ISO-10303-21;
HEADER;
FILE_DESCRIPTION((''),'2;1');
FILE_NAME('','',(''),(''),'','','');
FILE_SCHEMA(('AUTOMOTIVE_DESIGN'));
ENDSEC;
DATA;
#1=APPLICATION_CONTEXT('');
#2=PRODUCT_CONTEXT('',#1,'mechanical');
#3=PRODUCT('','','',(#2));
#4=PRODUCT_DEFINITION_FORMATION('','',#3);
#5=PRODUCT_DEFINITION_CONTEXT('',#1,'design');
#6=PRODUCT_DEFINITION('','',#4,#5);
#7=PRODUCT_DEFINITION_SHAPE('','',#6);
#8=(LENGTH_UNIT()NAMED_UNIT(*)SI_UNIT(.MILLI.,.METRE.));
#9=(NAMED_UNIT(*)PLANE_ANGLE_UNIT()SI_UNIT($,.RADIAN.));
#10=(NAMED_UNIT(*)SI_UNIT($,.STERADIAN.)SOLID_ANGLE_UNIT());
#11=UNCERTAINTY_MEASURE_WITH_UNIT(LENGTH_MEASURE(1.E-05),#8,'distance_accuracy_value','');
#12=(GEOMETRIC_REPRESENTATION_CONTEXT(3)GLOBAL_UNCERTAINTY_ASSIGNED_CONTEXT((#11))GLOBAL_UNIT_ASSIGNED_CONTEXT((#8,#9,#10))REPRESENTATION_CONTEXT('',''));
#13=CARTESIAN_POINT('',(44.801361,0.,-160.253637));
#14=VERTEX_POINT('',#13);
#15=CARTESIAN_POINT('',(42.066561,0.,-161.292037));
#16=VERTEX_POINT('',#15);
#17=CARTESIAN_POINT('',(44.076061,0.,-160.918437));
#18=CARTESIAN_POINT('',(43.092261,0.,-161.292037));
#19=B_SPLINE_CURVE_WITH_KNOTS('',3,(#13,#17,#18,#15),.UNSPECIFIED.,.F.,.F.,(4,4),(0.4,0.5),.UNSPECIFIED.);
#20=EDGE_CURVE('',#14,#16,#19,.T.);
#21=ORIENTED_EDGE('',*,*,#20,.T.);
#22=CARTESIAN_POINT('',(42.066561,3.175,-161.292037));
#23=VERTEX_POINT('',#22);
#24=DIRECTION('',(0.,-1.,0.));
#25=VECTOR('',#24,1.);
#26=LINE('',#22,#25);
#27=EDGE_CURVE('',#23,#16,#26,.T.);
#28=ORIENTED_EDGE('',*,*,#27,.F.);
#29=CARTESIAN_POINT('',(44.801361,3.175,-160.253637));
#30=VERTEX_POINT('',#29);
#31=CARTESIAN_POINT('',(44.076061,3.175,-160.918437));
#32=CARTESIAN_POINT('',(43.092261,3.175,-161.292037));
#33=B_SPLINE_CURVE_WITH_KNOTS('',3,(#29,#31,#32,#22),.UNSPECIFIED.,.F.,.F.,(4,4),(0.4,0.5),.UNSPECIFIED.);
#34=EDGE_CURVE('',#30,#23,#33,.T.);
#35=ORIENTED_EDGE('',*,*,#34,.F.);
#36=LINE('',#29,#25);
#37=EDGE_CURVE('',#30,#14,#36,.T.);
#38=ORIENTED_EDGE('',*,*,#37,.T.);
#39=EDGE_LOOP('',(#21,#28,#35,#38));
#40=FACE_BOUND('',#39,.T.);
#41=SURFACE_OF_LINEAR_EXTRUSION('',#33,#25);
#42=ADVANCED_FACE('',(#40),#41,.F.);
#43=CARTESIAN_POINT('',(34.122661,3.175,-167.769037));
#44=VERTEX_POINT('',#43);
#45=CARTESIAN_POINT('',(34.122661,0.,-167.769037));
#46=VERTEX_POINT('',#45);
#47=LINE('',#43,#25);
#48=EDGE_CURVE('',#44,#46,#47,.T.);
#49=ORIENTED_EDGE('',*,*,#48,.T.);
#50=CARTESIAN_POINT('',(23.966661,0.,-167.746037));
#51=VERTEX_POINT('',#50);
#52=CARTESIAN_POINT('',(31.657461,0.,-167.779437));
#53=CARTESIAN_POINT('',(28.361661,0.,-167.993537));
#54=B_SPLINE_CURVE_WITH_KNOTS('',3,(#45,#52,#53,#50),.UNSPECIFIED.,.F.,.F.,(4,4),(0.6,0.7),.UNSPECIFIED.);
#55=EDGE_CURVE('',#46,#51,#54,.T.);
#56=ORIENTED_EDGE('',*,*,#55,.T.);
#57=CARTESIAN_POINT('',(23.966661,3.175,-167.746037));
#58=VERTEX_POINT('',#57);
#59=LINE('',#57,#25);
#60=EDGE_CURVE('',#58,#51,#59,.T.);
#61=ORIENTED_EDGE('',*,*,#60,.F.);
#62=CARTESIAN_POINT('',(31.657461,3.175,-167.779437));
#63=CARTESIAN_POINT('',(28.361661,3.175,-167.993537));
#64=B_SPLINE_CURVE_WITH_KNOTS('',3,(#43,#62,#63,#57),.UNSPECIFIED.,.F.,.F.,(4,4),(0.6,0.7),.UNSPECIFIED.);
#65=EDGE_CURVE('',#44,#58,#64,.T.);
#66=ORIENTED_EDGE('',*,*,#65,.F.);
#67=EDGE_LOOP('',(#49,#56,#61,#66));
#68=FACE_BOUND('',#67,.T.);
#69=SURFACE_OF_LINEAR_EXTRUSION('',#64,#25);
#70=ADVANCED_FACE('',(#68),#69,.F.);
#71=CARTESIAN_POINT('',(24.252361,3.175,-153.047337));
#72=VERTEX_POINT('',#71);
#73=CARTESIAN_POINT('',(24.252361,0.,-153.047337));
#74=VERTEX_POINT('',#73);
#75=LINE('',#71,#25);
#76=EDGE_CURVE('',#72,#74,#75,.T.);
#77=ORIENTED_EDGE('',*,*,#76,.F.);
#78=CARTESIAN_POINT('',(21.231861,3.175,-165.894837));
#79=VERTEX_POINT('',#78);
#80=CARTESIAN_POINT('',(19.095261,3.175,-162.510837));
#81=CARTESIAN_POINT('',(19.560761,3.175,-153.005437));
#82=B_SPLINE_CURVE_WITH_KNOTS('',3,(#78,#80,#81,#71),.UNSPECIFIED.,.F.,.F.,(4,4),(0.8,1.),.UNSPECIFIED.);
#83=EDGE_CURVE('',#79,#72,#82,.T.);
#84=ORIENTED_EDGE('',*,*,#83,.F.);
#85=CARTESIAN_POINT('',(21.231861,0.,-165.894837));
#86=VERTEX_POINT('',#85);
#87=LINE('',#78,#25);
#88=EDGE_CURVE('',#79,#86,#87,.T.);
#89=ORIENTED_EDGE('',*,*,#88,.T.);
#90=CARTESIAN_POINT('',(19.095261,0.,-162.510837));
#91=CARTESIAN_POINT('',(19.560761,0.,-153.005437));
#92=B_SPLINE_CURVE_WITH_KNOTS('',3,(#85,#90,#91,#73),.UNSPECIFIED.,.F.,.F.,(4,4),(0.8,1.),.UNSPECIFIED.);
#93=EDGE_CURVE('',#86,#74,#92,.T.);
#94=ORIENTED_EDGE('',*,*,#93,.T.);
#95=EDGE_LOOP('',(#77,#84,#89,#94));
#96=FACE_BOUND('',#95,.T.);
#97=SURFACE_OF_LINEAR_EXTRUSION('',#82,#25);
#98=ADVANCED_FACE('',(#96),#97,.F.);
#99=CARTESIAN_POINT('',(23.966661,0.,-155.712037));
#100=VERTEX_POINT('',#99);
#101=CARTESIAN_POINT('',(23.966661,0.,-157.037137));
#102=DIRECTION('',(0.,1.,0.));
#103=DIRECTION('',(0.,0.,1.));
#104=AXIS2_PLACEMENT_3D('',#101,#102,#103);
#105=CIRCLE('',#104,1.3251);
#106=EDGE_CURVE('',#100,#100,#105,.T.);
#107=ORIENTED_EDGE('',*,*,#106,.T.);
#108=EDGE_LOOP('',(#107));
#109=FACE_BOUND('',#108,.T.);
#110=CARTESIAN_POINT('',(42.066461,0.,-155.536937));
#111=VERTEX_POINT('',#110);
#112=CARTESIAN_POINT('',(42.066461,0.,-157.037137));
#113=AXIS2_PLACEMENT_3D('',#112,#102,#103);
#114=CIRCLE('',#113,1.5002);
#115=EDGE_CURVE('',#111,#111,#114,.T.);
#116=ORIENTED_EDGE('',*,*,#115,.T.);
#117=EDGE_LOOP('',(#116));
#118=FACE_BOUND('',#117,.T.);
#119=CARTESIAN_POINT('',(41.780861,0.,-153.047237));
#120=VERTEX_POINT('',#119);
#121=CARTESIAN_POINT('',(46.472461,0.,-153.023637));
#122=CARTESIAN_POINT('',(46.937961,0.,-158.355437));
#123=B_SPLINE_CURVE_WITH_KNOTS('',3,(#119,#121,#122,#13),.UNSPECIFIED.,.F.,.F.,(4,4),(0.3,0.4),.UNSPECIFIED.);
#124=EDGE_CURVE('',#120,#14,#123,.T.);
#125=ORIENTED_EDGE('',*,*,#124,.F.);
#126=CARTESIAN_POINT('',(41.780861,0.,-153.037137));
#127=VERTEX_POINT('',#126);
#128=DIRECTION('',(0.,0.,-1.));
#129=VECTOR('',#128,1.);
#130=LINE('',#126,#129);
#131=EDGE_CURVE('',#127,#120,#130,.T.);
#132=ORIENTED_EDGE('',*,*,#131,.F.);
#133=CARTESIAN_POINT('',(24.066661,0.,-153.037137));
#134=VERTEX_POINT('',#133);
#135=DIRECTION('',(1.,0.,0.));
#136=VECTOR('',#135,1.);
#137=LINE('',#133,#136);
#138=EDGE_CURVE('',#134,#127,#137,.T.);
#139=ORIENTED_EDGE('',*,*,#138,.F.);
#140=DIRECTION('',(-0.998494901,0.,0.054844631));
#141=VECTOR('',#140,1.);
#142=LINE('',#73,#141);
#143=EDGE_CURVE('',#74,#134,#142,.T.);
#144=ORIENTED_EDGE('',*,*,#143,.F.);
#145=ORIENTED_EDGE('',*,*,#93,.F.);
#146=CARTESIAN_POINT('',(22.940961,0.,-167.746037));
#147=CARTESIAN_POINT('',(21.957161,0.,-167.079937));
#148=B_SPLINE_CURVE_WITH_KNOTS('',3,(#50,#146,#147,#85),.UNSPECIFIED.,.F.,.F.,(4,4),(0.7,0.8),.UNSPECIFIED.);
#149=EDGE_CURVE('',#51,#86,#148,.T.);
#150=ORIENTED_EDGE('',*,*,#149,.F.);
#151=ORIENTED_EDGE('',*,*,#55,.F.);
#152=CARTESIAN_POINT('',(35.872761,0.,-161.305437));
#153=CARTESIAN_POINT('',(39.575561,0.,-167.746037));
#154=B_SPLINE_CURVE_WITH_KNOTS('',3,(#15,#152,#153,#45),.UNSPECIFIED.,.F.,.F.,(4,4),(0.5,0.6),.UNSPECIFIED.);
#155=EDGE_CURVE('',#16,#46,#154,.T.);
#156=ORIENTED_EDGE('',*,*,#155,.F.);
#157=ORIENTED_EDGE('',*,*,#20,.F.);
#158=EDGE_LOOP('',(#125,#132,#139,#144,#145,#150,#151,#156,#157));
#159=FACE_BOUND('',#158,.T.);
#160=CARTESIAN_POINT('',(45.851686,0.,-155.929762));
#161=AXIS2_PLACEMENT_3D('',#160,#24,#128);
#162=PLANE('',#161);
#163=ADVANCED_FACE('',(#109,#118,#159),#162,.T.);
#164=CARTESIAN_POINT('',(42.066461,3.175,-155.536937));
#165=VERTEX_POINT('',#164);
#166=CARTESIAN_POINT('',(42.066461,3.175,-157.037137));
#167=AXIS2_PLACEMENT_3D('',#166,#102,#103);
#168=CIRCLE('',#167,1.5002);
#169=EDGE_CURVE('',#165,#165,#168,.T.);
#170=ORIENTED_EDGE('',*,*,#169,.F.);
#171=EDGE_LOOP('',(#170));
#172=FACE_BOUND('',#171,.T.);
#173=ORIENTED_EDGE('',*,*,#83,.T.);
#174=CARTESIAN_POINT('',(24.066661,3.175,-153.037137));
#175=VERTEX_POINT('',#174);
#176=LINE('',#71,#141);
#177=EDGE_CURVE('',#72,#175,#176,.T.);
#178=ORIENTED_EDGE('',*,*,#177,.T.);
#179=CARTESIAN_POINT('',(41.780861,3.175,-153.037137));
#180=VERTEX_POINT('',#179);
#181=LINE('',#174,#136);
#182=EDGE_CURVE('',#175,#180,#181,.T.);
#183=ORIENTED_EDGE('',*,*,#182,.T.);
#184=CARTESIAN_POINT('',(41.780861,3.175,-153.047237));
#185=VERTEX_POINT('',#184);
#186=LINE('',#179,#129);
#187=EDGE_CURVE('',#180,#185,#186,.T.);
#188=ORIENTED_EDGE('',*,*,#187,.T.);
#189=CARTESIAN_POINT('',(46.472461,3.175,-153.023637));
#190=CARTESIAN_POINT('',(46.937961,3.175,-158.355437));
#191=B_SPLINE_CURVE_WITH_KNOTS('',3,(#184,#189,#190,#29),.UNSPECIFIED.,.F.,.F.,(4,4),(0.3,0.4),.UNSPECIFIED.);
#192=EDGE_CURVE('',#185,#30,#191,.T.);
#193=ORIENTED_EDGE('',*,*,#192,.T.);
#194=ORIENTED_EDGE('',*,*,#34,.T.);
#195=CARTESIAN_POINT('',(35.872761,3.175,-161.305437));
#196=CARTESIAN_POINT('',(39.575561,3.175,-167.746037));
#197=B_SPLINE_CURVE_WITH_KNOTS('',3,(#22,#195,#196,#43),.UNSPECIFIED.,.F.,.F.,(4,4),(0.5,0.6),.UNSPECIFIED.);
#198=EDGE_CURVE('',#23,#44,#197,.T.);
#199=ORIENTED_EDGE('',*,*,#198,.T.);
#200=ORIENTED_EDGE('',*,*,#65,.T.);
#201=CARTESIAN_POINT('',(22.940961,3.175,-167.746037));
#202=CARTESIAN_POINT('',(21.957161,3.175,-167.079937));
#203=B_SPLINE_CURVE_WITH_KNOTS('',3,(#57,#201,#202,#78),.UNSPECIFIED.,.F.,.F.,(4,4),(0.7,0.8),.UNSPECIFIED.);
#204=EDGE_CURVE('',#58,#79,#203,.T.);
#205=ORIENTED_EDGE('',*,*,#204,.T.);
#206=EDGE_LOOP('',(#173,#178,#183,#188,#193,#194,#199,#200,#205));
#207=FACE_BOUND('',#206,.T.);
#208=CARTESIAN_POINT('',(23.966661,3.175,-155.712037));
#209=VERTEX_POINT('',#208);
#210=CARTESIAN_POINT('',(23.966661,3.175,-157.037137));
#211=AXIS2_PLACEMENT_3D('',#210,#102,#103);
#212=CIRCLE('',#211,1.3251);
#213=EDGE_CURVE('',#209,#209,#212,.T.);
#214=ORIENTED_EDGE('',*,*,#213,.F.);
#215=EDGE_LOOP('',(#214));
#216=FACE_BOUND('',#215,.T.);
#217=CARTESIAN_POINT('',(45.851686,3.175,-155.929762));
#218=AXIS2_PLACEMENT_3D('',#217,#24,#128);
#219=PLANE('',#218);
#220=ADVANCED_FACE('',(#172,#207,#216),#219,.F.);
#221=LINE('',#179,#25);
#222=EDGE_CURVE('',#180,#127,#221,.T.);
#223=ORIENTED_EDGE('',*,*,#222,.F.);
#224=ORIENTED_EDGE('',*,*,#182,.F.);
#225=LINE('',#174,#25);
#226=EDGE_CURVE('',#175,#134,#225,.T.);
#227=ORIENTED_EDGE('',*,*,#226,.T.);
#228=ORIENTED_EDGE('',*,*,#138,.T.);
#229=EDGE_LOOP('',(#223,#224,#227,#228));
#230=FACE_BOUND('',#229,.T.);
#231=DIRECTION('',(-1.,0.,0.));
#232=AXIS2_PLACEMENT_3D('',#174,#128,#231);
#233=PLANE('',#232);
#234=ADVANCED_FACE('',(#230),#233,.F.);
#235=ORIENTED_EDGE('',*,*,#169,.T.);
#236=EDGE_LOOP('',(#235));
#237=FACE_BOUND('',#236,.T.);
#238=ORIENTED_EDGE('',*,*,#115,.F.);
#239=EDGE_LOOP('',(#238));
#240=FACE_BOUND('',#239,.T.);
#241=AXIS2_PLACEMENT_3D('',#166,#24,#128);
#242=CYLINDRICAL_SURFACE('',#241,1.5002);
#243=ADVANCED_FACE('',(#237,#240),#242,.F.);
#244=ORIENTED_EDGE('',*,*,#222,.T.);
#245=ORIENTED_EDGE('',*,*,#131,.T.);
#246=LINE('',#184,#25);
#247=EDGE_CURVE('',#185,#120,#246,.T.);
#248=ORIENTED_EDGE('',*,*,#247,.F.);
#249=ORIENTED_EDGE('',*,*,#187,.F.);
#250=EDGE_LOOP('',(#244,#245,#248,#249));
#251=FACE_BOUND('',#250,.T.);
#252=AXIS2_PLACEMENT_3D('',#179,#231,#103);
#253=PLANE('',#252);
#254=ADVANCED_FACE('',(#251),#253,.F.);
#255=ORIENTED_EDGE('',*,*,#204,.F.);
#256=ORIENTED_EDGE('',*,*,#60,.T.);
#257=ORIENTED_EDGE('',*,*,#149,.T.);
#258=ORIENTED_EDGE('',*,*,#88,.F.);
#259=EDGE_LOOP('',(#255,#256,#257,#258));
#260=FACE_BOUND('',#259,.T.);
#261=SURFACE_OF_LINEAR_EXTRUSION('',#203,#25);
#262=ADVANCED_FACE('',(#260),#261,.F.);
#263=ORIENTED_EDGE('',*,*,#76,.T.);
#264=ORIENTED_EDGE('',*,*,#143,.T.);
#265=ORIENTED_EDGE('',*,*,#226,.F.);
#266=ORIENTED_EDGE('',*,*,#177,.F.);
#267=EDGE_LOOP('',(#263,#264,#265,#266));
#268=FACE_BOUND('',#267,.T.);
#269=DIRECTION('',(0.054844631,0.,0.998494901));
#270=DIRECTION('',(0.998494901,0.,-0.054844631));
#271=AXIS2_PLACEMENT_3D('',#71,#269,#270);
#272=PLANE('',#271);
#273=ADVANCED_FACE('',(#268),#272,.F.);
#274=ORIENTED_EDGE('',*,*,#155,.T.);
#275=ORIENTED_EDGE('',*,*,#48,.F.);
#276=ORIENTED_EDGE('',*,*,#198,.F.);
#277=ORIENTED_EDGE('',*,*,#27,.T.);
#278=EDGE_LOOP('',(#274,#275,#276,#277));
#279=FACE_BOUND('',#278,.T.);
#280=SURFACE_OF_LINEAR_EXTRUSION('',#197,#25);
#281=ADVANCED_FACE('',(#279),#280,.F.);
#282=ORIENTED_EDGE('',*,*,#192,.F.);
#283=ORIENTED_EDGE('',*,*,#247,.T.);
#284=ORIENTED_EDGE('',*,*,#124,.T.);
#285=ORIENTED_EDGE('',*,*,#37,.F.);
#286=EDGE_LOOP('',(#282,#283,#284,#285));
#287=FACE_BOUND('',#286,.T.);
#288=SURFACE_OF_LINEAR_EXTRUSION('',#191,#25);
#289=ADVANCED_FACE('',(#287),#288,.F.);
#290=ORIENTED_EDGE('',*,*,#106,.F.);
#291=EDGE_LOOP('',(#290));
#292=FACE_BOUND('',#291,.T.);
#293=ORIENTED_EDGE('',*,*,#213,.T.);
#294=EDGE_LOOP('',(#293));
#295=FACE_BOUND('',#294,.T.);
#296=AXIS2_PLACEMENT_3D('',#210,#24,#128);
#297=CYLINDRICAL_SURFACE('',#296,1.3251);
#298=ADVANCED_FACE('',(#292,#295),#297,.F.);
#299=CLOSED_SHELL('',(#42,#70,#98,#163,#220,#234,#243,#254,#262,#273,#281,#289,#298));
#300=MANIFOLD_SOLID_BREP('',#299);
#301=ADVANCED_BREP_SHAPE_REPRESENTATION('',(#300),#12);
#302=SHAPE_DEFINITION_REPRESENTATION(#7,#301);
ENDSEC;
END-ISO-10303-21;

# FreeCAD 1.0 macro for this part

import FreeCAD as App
import Part
import Sketcher

V = App.Vector
Q = App.Units.Quantity

doc = App.newDocument("Part")
params = doc.addObject("Spreadsheet::Sheet", "Params")
for row, (alias, value) in enumerate([
    ("pad1_length", "0.125 in"),
], start=1):
    params.set(f"A{row}", alias)
    params.set(f"B{row}", "=" + value)
    params.setAlias(f"B{row}", alias)

body = doc.addObject("PartDesign::Body", "Body")

# Sketch on XZ plane
sketch1 = body.newObject("Sketcher::SketchObject", "Sketch")
sketch1.AttachmentSupport = (doc.getObject("XZ_Plane"), [""])
sketch1.MapMode = "FlatFace"
sketch1.addGeometry([
    Part.LineSegment(V(24.252361, -153.047337, 0), V(24.066661, -153.037137, 0)),  # 0
    Part.LineSegment(V(24.066661, -153.037137, 0), V(41.780861, -153.037137, 0)),  # 1
    Part.LineSegment(V(41.780861, -153.037137, 0), V(41.780861, -153.047237, 0)),  # 2
    Part.BSplineCurve([V(41.780861, -153.047237, 0), V(46.472461, -153.023637, 0), V(46.937961, -158.355437, 0), V(44.801361, -160.253637, 0)], [4, 4], [0.3, 0.4], False, 3, [1, 1, 1, 1], False),  # 3
    Part.BSplineCurve([V(44.801361, -160.253637, 0), V(44.076061, -160.918437, 0), V(43.092261, -161.292037, 0), V(42.066561, -161.292037, 0)], [4, 4], [0.4, 0.5], False, 3, [1, 1, 1, 1], False),  # 4
    Part.BSplineCurve([V(42.066561, -161.292037, 0), V(35.872761, -161.305437, 0), V(39.575561, -167.746037, 0), V(34.122661, -167.769037, 0)], [4, 4], [0.5, 0.6], False, 3, [1, 1, 1, 1], False),  # 5
    Part.BSplineCurve([V(34.122661, -167.769037, 0), V(31.657461, -167.779437, 0), V(28.361661, -167.993537, 0), V(23.966661, -167.746037, 0)], [4, 4], [0.6, 0.7], False, 3, [1, 1, 1, 1], False),  # 6
    Part.BSplineCurve([V(23.966661, -167.746037, 0), V(22.940961, -167.746037, 0), V(21.957161, -167.079937, 0), V(21.231861, -165.894837, 0)], [4, 4], [0.7, 0.8], False, 3, [1, 1, 1, 1], False),  # 7
    Part.BSplineCurve([V(21.231861, -165.894837, 0), V(19.095261, -162.510837, 0), V(19.560761, -153.005437, 0), V(24.252361, -153.047337, 0)], [4, 4], [0.8, 1], False, 3, [1, 1, 1, 1], False),  # 8
    Part.Circle(V(23.966661, -157.037137, 0), V(0, 0, 1), 1.3251),  # 9
    Part.Circle(V(42.066461, -157.037137, 0), V(0, 0, 1), 1.5002),  # 10
], False)
sketch1.addConstraint([
    Sketcher.Constraint("Block", 3),
    Sketcher.Constraint("Block", 4),
    Sketcher.Constraint("Block", 5),
    Sketcher.Constraint("Block", 6),
    Sketcher.Constraint("Block", 7),
    Sketcher.Constraint("Block", 8),
    Sketcher.Constraint("Coincident", 0, 2, 1, 1),
    Sketcher.Constraint("Coincident", 1, 2, 2, 1),
    Sketcher.Constraint("Coincident", 2, 2, 3, 1),
    Sketcher.Constraint("Coincident", 8, 2, 0, 1),
    Sketcher.Constraint("Horizontal", 1),
    Sketcher.Constraint("Vertical", 2),
    Sketcher.Constraint("Horizontal", 9, 3, 10, 3),
    Sketcher.Constraint("Diameter", 9, Q("2.6502 mm")),
    Sketcher.Constraint("Diameter", 10, Q("3.0004 mm")),
    Sketcher.Constraint("DistanceX", 1, 1, 1, 2, Q("17.7142 mm")),
    Sketcher.Constraint("DistanceY", 2, 2, 2, 1, Q("0.0101 mm")),
    Sketcher.Constraint("DistanceX", 9, 3, 10, 3, Q("18.0998 mm")),
    Sketcher.Constraint("DistanceX", 9, 3, 0, 2, Q("0.1 mm")),
    Sketcher.Constraint("DistanceY", 9, 3, 0, 2, Q("4 mm")),
])
pad1 = body.newObject("PartDesign::Pad", "Pad")
pad1.Profile = sketch1
pad1.setExpression("Length", "Params.pad1_length")
pad1.Reversed = True

doc.recompute()
